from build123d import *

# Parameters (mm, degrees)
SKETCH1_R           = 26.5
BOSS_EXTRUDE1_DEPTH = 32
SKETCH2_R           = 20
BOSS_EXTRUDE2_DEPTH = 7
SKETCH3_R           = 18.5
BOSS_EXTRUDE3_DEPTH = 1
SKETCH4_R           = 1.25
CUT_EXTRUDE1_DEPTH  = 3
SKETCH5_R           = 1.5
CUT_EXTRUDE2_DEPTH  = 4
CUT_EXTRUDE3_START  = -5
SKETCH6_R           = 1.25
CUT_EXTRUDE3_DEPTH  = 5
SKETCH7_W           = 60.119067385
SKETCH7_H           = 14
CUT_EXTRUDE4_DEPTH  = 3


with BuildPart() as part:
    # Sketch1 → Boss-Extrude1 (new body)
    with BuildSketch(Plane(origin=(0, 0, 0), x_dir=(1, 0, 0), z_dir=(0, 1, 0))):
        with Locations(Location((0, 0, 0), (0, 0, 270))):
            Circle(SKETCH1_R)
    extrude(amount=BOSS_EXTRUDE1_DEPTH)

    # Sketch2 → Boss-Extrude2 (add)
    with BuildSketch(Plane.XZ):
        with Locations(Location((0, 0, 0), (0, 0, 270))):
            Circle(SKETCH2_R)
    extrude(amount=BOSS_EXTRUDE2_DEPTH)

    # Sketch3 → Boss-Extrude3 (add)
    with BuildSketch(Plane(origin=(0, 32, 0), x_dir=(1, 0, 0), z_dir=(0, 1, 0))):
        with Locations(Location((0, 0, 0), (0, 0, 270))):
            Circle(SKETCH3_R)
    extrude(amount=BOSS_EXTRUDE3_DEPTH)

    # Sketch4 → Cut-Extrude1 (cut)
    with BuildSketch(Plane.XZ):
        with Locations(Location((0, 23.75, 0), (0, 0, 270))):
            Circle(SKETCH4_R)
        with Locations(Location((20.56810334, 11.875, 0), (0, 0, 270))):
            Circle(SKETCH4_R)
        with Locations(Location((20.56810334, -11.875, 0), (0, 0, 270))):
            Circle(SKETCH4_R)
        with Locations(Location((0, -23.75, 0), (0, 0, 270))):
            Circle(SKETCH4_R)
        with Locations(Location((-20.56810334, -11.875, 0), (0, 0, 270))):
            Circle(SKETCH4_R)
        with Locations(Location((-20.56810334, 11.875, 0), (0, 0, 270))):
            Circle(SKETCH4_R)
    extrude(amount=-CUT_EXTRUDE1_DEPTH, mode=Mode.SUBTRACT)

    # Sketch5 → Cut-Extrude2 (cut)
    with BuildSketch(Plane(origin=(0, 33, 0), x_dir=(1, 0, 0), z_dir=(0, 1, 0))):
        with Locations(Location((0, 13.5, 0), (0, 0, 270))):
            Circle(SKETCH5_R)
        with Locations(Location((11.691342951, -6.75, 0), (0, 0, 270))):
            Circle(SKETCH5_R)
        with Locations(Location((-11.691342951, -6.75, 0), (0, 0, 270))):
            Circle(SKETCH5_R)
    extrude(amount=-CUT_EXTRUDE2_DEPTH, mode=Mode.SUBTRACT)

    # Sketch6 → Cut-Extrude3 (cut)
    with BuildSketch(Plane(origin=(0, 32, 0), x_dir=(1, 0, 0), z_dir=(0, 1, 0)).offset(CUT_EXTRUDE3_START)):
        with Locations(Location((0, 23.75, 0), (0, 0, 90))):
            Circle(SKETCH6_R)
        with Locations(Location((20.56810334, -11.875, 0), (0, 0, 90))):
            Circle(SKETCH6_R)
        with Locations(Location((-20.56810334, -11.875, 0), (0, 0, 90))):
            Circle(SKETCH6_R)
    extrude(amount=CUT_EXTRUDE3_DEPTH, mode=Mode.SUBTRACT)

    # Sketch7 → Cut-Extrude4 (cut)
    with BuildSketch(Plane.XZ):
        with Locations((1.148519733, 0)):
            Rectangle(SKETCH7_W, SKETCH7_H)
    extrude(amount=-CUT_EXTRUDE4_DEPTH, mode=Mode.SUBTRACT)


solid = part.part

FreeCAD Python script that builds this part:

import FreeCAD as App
import Part
import Sketcher
from FreeCAD import Vector

doc = App.newDocument("Part")
body = doc.addObject("PartDesign::Body", "Body")

# Sketch on XZ plane
sketch1 = body.newObject("Sketcher::SketchObject", "Sketch")
sketch1.AttachmentSupport = (doc.getObject("XZ_Plane"), [""])
sketch1.MapMode = "FlatFace"
sketch1.addGeometry(Part.Circle(Vector(0, 0, 0), Vector(0, 0, 1), 26), False)
sketch1.addConstraint([
    Sketcher.Constraint("Coincident", 0, 3, -1, 1),
    Sketcher.Constraint("Diameter", 0, 53.0),
])
pad1 = body.newObject("PartDesign::Pad", "Pad")
pad1.Profile = sketch1
pad1.Length = 32
pad1.Reversed = True

# Sketch on XZ plane
sketch2 = body.newObject("Sketcher::SketchObject", "Sketch001")
sketch2.AttachmentSupport = (doc.getObject("XZ_Plane"), [""])
sketch2.MapMode = "FlatFace"
sketch2.addGeometry(Part.Circle(Vector(0, 0, 0), Vector(0, 0, 1), 20), False)
sketch2.addConstraint([
    Sketcher.Constraint("Coincident", 0, 3, -1, 1),
    Sketcher.Constraint("Diameter", 0, 40.0),
])
pad2 = body.newObject("PartDesign::Pad", "Pad001")
pad2.Profile = sketch2
pad2.Length = 7

# Sketch on XZ plane
sketch3 = body.newObject("Sketcher::SketchObject", "Sketch002")
sketch3.AttachmentSupport = (doc.getObject("XZ_Plane"), [""])
sketch3.MapMode = "FlatFace"
sketch3.AttachmentOffset = App.Placement(Vector(0, 0, -32), App.Rotation())
sketch3.addGeometry(Part.Circle(Vector(0, 0, 0), Vector(0, 0, 1), 18), False)
sketch3.addConstraint([
    Sketcher.Constraint("Coincident", 0, 3, -1, 1),
    Sketcher.Constraint("Diameter", 0, 37.0),
])
pad3 = body.newObject("PartDesign::Pad", "Pad002")
pad3.Profile = sketch3
pad3.Length = 1
pad3.Reversed = True

# Sketch on XZ plane
sketch4 = body.newObject("Sketcher::SketchObject", "Sketch003")
sketch4.AttachmentSupport = (doc.getObject("XZ_Plane"), [""])
sketch4.MapMode = "FlatFace"
sketch4.addGeometry([
    Part.Circle(Vector(0, 23.8, 0), Vector(0, 0, 1), 1.2),  # 0
    Part.Circle(Vector(20.6, 11.9, 0), Vector(0, 0, 1), 1.2),  # 1
    Part.Circle(Vector(20.6, -11.9, 0), Vector(0, 0, 1), 1.2),  # 2
    Part.Circle(Vector(0, -23.8, 0), Vector(0, 0, 1), 1.2),  # 3
    Part.Circle(Vector(-20.6, -11.9, 0), Vector(0, 0, 1), 1.2),  # 4
    Part.Circle(Vector(-20.6, 11.9, 0), Vector(0, 0, 1), 1.2),  # 5
], False)
sketch4.addConstraint([
    Sketcher.Constraint("Equal", 0, 1),
    Sketcher.Constraint("Equal", 1, 2),
    Sketcher.Constraint("Equal", 2, 3),
    Sketcher.Constraint("Equal", 3, 4),
    Sketcher.Constraint("Equal", 4, 5),
    Sketcher.Constraint("Symmetric", 0, 3, 3, 3, -1, 1),
    Sketcher.Constraint("Symmetric", 1, 3, 4, 3, -1, 1),
    Sketcher.Constraint("Symmetric", 2, 3, 5, 3, -1, 1),
    Sketcher.Constraint("Symmetric", 2, 3, 4, 3, -2),
    Sketcher.Constraint("PointOnObject", 0, 3, -2),
    Sketcher.Constraint("Diameter", 0, 2.5),
    Sketcher.Constraint("DistanceY", 3, 3, 0, 3, 47.5),
    Sketcher.Constraint("DistanceY", 2, 3, 1, 3, 23.75),
    Sketcher.Constraint("DistanceX", -1, 1, 1, 3, 20.568103),
])
pocket1 = body.newObject("PartDesign::Pocket", "Pocket")
pocket1.Profile = sketch4
pocket1.Length = 3

# Sketch on XZ plane
sketch5 = body.newObject("Sketcher::SketchObject", "Sketch004")
sketch5.AttachmentSupport = (doc.getObject("XZ_Plane"), [""])
sketch5.MapMode = "FlatFace"
sketch5.AttachmentOffset = App.Placement(Vector(0, 0, -33), App.Rotation())
sketch5.addGeometry([
    Part.Circle(Vector(0, -13.5, 0), Vector(0, 0, 1), 1.5),
    Part.Circle(Vector(11.7, 6.8, 0), Vector(0, 0, 1), 1.5),
    Part.Circle(Vector(-11.7, 6.8, 0), Vector(0, 0, 1), 1.5),
], False)
sketch5.addConstraint([
    Sketcher.Constraint("Equal", 0, 1),
    Sketcher.Constraint("Equal", 1, 2),
    Sketcher.Constraint("Symmetric", 1, 3, 2, 3, -2),
    Sketcher.Constraint("PointOnObject", 0, 3, -2),
    Sketcher.Constraint("Diameter", 0, 3.0),
    Sketcher.Constraint("DistanceY", 0, 3, -1, 1, 13.5),
    Sketcher.Constraint("DistanceY", -1, 1, 1, 3, 6.75),
    Sketcher.Constraint("DistanceX", -1, 1, 1, 3, 11.691343),
])
pocket2 = body.newObject("PartDesign::Pocket", "Pocket001")
pocket2.Profile = sketch5
pocket2.Length = 4
pocket2.Reversed = True

# Sketch on XZ plane
sketch6 = body.newObject("Sketcher::SketchObject", "Sketch005")
sketch6.AttachmentSupport = (doc.getObject("XZ_Plane"), [""])
sketch6.MapMode = "FlatFace"
sketch6.AttachmentOffset = App.Placement(Vector(0, 0, -27), App.Rotation())
sketch6.addGeometry([
    Part.Circle(Vector(0, -23.8, 0), Vector(0, 0, 1), 1.2),
    Part.Circle(Vector(20.6, 11.9, 0), Vector(0, 0, 1), 1.2),
    Part.Circle(Vector(-20.6, 11.9, 0), Vector(0, 0, 1), 1.2),
], False)
sketch6.addConstraint([
    Sketcher.Constraint("Equal", 0, 1),
    Sketcher.Constraint("Equal", 1, 2),
    Sketcher.Constraint("Symmetric", 1, 3, 2, 3, -2),
    Sketcher.Constraint("PointOnObject", 0, 3, -2),
    Sketcher.Constraint("Diameter", 0, 2.5),
    Sketcher.Constraint("DistanceY", 0, 3, -1, 1, 23.75),
    Sketcher.Constraint("DistanceY", -1, 1, 1, 3, 11.875),
    Sketcher.Constraint("DistanceX", -1, 1, 1, 3, 20.568103),
])
pocket3 = body.newObject("PartDesign::Pocket", "Pocket002")
pocket3.Profile = sketch6
pocket3.Length = 5

# Sketch on XZ plane
sketch7 = body.newObject("Sketcher::SketchObject", "Sketch006")
sketch7.AttachmentSupport = (doc.getObject("XZ_Plane"), [""])
sketch7.MapMode = "FlatFace"
sketch7.addGeometry([
    Part.LineSegment(Vector(-29, 7, 0), Vector(-29, -7, 0)),
    Part.LineSegment(Vector(-29, -7, 0), Vector(31, -7, 0)),
    Part.LineSegment(Vector(31, -7, 0), Vector(31, 7, 0)),
    Part.LineSegment(Vector(31, 7, 0), Vector(-29, 7, 0)),
], False)
sketch7.addConstraint([
    Sketcher.Constraint("Coincident", 0, 2, 1, 1),
    Sketcher.Constraint("Coincident", 1, 2, 2, 1),
    Sketcher.Constraint("Coincident", 2, 2, 3, 1),
    Sketcher.Constraint("Coincident", 3, 2, 0, 1),
    Sketcher.Constraint("Vertical", 0),
    Sketcher.Constraint("Horizontal", 1),
    Sketcher.Constraint("Vertical", 2),
    Sketcher.Constraint("Horizontal", 3),
    Sketcher.Constraint("DistanceY", 0, 2, 0, 1, 14.0),
    Sketcher.Constraint("DistanceY", 0, 2, -1, 1, 7.0),
    Sketcher.Constraint("DistanceX", 1, 1, 1, 2, 60.119067),
    Sketcher.Constraint("DistanceX", 0, 2, -1, 1, 28.911014),
])
pocket4 = body.newObject("PartDesign::Pocket", "Pocket003")
pocket4.Profile = sketch7
pocket4.Length = 3

doc.recompute()
